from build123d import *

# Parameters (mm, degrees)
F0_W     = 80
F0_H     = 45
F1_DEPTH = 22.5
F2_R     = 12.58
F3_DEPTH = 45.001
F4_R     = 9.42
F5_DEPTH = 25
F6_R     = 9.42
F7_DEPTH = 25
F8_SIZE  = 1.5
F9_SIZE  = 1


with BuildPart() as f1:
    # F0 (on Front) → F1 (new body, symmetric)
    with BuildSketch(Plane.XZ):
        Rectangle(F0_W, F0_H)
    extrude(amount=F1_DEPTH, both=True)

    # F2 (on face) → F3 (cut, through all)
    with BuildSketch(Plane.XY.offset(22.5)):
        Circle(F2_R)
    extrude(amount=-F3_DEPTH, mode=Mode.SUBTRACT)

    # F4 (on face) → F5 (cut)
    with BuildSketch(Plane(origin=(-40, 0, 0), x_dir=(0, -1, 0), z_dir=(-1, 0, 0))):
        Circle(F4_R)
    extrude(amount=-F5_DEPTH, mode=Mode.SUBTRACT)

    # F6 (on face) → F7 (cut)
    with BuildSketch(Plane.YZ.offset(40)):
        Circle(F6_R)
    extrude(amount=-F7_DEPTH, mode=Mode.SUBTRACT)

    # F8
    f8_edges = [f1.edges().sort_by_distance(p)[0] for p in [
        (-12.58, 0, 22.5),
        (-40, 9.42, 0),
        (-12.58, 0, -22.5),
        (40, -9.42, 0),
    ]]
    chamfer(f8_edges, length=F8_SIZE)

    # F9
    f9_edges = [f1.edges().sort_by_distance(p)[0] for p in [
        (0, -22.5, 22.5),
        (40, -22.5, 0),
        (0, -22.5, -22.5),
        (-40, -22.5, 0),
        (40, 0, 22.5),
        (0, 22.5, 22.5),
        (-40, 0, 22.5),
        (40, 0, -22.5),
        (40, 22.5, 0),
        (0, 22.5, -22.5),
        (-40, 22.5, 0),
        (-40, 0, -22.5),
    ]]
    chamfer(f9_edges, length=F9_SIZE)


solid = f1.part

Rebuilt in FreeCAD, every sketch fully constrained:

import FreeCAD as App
import Part
import Sketcher

V = App.Vector
Q = App.Units.Quantity


def edges_at(feature, points):
    """Names of the edges that pass closest to the given points."""
    edges = feature.Shape.Edges
    near = lambda p: min(range(len(edges)), key=lambda i: edges[i].distToShape(Part.Vertex(*p))[0])
    return sorted({f"Edge{near(p) + 1}" for p in points})

doc = App.newDocument("Part")
params = doc.addObject("Spreadsheet::Sheet", "Params")
for row, (alias, value) in enumerate([
    ("sketch1_width", "80 mm"),
    ("sketch1_height", "45 mm"),
    ("pad1_length", "45 mm"),
    ("sketch2_diameter", "25.16 mm"),
    ("sketch3_diameter", "18.84 mm"),
    ("pocket2_length", "25 mm"),
    ("sketch4_diameter", "18.84 mm"),
    ("pocket3_length", "25 mm"),
    ("chamfer_size", "1.5 mm"),
    ("chamfer2_size", "1 mm"),
], start=1):
    params.set(f"A{row}", alias)
    params.set(f"B{row}", "=" + value)
    params.setAlias(f"B{row}", alias)

body = doc.addObject("PartDesign::Body", "Body")

# Sketch on XZ plane
sketch1 = body.newObject("Sketcher::SketchObject", "Sketch")
sketch1.AttachmentSupport = (doc.getObject("XZ_Plane"), [""])
sketch1.MapMode = "FlatFace"
sketch1.addGeometry(Part.LineSegment(V(-40, 22, 0), V(-40, -22, 0)), False)
sketch1.addGeometry(Part.LineSegment(V(-40, -22, 0), V(40, -22, 0)), False)
sketch1.addGeometry(Part.LineSegment(V(40, -22, 0), V(40, 22, 0)), False)
sketch1.addGeometry(Part.LineSegment(V(40, 22, 0), V(-40, 22, 0)), False)
sketch1.addConstraint(Sketcher.Constraint("Coincident", 0, 2, 1, 1))
sketch1.addConstraint(Sketcher.Constraint("Coincident", 1, 2, 2, 1))
sketch1.addConstraint(Sketcher.Constraint("Coincident", 2, 2, 3, 1))
sketch1.addConstraint(Sketcher.Constraint("Coincident", 3, 2, 0, 1))
sketch1.addConstraint(Sketcher.Constraint("Vertical", 0))
sketch1.addConstraint(Sketcher.Constraint("Horizontal", 1))
sketch1.addConstraint(Sketcher.Constraint("Vertical", 2))
sketch1.addConstraint(Sketcher.Constraint("Horizontal", 3))
sketch1.addConstraint(Sketcher.Constraint("Symmetric", 0, 2, 2, 2, -1, 1))
sketch1.addConstraint(Sketcher.Constraint("DistanceX", 1, 1, 1, 2, Q("80 mm")))
sketch1.addConstraint(Sketcher.Constraint("DistanceY", 0, 2, 0, 1, Q("45 mm")))
sketch1.setExpression("Constraints[9]", "Params.sketch1_width")
sketch1.setExpression("Constraints[10]", "Params.sketch1_height")
pad1 = body.newObject("PartDesign::Pad", "Pad")
pad1.Profile = sketch1
pad1.setExpression("Length", "Params.pad1_length")
pad1.Midplane = True

# Sketch on XY plane
sketch2 = body.newObject("Sketcher::SketchObject", "Sketch001")
sketch2.AttachmentSupport = (doc.getObject("XY_Plane"), [""])
sketch2.MapMode = "FlatFace"
sketch2.AttachmentOffset = App.Placement(V(0, 0, 22.5), App.Rotation())
sketch2.addGeometry(Part.Circle(V(0, 0, 0), V(0, 0, 1), 13), False)
sketch2.addConstraint(Sketcher.Constraint("Coincident", 0, 3, -1, 1))
sketch2.addConstraint(Sketcher.Constraint("Diameter", 0, Q("25.16 mm")))
sketch2.setExpression("Constraints[1]", "Params.sketch2_diameter")
pocket1 = body.newObject("PartDesign::Pocket", "Pocket")
pocket1.Profile = sketch2
pocket1.Type = "ThroughAll"

# Sketch on YZ plane
sketch3 = body.newObject("Sketcher::SketchObject", "Sketch002")
sketch3.AttachmentSupport = (doc.getObject("YZ_Plane"), [""])
sketch3.MapMode = "FlatFace"
sketch3.AttachmentOffset = App.Placement(V(0, 0, -40), App.Rotation())
sketch3.addGeometry(Part.Circle(V(0, 0, 0), V(0, 0, 1), 9), False)
sketch3.addConstraint(Sketcher.Constraint("Coincident", 0, 3, -1, 1))
sketch3.addConstraint(Sketcher.Constraint("Diameter", 0, Q("18.84 mm")))
sketch3.setExpression("Constraints[1]", "Params.sketch3_diameter")
pocket2 = body.newObject("PartDesign::Pocket", "Pocket001")
pocket2.Profile = sketch3
pocket2.setExpression("Length", "Params.pocket2_length")
pocket2.Reversed = True

# Sketch on YZ plane
sketch4 = body.newObject("Sketcher::SketchObject", "Sketch003")
sketch4.AttachmentSupport = (doc.getObject("YZ_Plane"), [""])
sketch4.MapMode = "FlatFace"
sketch4.AttachmentOffset = App.Placement(V(0, 0, 40), App.Rotation())
sketch4.addGeometry(Part.Circle(V(0, 0, 0), V(0, 0, 1), 9), False)
sketch4.addConstraint(Sketcher.Constraint("Coincident", 0, 3, -1, 1))
sketch4.addConstraint(Sketcher.Constraint("Diameter", 0, Q("18.84 mm")))
sketch4.setExpression("Constraints[1]", "Params.sketch4_diameter")
pocket3 = body.newObject("PartDesign::Pocket", "Pocket002")
pocket3.Profile = sketch4
pocket3.setExpression("Length", "Params.pocket3_length")
doc.recompute()

chamfer = body.newObject("PartDesign::Chamfer", "Chamfer")
chamfer.Base = (pocket3, edges_at(pocket3, [
    (-12.58, 0, 22.5),
    (-40, 9.42, 0),
    (-12.58, 0, -22.5),
    (40, -9.42, 0),
]))
chamfer.setExpression("Size", "Params.chamfer_size")
doc.recompute()

chamfer2 = body.newObject("PartDesign::Chamfer", "Chamfer001")
chamfer2.Base = (chamfer, edges_at(chamfer, [
    (0, -22.5, 22.5),
    (40, -22.5, 0),
    (0, -22.5, -22.5),
    (-40, -22.5, 0),
    (40, 0, 22.5),
    (0, 22.5, 22.5),
    (-40, 0, 22.5),
    (40, 0, -22.5),
    (40, 22.5, 0),
    (0, 22.5, -22.5),
    (-40, 22.5, 0),
    (-40, 0, -22.5),
]))
chamfer2.setExpression("Size", "Params.chamfer2_size")

doc.recompute()
